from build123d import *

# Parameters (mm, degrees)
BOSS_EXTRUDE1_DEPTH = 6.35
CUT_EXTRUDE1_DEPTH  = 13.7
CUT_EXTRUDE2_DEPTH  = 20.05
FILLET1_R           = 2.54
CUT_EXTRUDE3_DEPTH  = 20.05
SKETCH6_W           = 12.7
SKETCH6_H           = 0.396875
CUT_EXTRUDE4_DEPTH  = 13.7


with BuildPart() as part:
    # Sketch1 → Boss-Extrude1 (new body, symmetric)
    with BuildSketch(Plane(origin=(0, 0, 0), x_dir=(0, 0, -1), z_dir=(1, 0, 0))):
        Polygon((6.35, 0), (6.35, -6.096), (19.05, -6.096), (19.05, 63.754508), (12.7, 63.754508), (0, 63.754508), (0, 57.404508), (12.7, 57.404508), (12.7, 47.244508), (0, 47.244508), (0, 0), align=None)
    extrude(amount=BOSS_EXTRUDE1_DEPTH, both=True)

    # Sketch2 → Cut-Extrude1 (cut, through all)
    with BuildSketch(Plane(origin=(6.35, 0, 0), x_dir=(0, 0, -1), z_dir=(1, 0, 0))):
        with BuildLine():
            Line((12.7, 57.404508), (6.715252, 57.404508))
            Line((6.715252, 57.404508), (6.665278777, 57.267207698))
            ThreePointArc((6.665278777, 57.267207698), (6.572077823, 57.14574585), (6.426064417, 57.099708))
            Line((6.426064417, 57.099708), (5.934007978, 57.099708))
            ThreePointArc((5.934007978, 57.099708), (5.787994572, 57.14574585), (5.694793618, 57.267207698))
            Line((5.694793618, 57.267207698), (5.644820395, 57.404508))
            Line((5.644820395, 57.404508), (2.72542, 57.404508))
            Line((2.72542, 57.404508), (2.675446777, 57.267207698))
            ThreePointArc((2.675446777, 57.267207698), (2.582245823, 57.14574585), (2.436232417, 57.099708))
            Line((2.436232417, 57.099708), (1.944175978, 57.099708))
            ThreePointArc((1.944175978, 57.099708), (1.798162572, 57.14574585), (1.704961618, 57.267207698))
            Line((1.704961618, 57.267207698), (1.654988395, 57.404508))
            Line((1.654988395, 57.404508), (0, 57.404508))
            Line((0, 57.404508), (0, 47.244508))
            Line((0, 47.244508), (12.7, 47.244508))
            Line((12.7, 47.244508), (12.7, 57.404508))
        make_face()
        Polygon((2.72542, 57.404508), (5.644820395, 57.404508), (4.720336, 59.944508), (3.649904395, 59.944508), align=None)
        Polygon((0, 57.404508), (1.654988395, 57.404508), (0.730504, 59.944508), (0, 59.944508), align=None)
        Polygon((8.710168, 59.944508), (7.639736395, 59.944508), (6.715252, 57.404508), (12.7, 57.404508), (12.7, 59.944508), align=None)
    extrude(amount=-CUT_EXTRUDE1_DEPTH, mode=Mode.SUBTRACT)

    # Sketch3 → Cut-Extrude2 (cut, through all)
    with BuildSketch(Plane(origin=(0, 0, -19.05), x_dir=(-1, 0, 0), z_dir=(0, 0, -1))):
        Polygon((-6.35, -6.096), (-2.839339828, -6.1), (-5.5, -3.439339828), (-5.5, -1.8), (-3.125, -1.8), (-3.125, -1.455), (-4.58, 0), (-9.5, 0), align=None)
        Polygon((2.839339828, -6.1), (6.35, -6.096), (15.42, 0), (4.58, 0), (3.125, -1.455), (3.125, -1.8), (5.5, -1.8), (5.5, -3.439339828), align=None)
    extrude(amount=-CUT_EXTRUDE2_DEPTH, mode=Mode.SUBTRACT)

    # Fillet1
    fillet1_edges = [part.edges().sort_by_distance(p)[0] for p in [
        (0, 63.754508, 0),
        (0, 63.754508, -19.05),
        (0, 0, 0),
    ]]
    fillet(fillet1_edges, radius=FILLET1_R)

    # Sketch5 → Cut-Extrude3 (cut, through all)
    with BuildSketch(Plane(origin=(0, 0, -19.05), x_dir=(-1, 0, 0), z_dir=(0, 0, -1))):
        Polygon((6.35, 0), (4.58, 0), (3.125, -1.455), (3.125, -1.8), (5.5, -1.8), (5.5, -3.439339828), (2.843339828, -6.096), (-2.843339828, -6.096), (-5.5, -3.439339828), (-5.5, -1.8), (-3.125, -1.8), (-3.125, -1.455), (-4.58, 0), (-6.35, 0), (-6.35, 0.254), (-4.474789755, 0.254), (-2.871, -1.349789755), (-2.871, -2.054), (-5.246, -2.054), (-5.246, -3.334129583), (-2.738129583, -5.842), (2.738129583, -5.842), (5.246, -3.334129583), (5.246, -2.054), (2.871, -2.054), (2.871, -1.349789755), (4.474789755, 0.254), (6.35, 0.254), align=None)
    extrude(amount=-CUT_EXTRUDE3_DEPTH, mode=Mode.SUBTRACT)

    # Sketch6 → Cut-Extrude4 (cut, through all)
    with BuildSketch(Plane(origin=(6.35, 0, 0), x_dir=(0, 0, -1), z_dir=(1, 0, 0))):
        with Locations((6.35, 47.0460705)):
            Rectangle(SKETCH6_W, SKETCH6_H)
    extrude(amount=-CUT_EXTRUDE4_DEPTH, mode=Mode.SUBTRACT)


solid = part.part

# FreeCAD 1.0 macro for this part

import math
import FreeCAD as App
import Part
import Sketcher
from FreeCAD import Vector
Q = App.Units.Quantity


def edges_at(feature, points):
    """Names of the edges that pass closest to the given points."""
    edges = feature.Shape.Edges
    near = lambda p: min(range(len(edges)), key=lambda i: edges[i].distToShape(Part.Vertex(*p))[0])
    return sorted({f"Edge{near(p) + 1}" for p in points})

doc = App.newDocument("Part")
params = doc.addObject("Spreadsheet::Sheet", "Params")
for row, (alias, value) in enumerate([
    ("sketch1_width", "0.4 in"),
    ("sketch1_height", "0.5 in"),
    ("sketch1_width2", "0.24 in"),
    ("sketch1_width3", "0.25 in"),
    ("pad1_length", "0.5 in"),
    ("sketch2_width", "0.5 in"),
    ("fillet_radius", "0.1 in"),
    ("sketch4_height", "0.01 in"),
    ("sketch5_height", "0.5 in"),
    ("sketch5_width", "0.015625 in"),
], start=1):
    params.set(f"A{row}", alias)
    params.set(f"B{row}", "=" + value)
    params.setAlias(f"B{row}", alias)

body = doc.addObject("PartDesign::Body", "Body")

sketch1 = body.newObject("Sketcher::SketchObject", "Sketch")
sketch1.AttachmentSupport = (doc.getObject("YZ_Plane"), [""])
sketch1.MapMode = "FlatFace"
sketch1.addGeometry([
    Part.LineSegment(Vector(0, -6, 0), Vector(-6, -6, 0)),
    Part.LineSegment(Vector(-6, -6, 0), Vector(-6, -19, 0)),
    Part.LineSegment(Vector(-6, -19, 0), Vector(64, -19, 0)),
    Part.LineSegment(Vector(64, -19, 0), Vector(64, 0, 0)),
    Part.LineSegment(Vector(64, 0, 0), Vector(57, 0, 0)),
    Part.LineSegment(Vector(57, 0, 0), Vector(57, -13, 0)),
    Part.LineSegment(Vector(57, -13, 0), Vector(47, -13, 0)),
    Part.LineSegment(Vector(47, -13, 0), Vector(47, 0, 0)),
    Part.LineSegment(Vector(47, 0, 0), Vector(0, 0, 0)),
    Part.LineSegment(Vector(0, 0, 0), Vector(0, -6, 0)),
], False)
sketch1.addConstraint([
    Sketcher.Constraint("Coincident", 0, 2, 1, 1),
    Sketcher.Constraint("Coincident", 1, 2, 2, 1),
    Sketcher.Constraint("Coincident", 2, 2, 3, 1),
    Sketcher.Constraint("Coincident", 3, 2, 4, 1),
    Sketcher.Constraint("Coincident", 4, 2, 5, 1),
    Sketcher.Constraint("Coincident", 5, 2, 6, 1),
    Sketcher.Constraint("Coincident", 6, 2, 7, 1),
    Sketcher.Constraint("Coincident", 7, 2, 8, 1),
    Sketcher.Constraint("Coincident", 8, 2, 9, 1),
    Sketcher.Constraint("Coincident", 9, 2, 0, 1),
    Sketcher.Constraint("Horizontal", 0),
    Sketcher.Constraint("Vertical", 1),
    Sketcher.Constraint("Horizontal", 2),
    Sketcher.Constraint("Vertical", 3),
    Sketcher.Constraint("Horizontal", 4),
    Sketcher.Constraint("Vertical", 5),
    Sketcher.Constraint("Horizontal", 6),
    Sketcher.Constraint("Vertical", 7),
    Sketcher.Constraint("Horizontal", 8),
    Sketcher.Constraint("Vertical", 9),
    Sketcher.Constraint("Coincident", 8, 2, -1, 1),
    Sketcher.Constraint("PointOnObject", 3, 2, -1),
    Sketcher.Constraint("Equal", 1, 5),
    Sketcher.Constraint("Equal", 4, 9),
    Sketcher.Constraint("DistanceX", 6, 2, 6, 1, Q("0.4 in")),
    Sketcher.Constraint("DistanceY", 1, 2, 1, 1, Q("0.5 in")),
    Sketcher.Constraint("DistanceX", 0, 2, 0, 1, Q("0.24 in")),
    Sketcher.Constraint("DistanceX", 4, 2, 4, 1, Q("0.25 in")),
    Sketcher.Constraint("DistanceX", 2, 1, 2, 2, Q("69.850508 mm")),
])
sketch1.setExpression("Constraints[24]", "Params.sketch1_width")
sketch1.setExpression("Constraints[25]", "Params.sketch1_height")
sketch1.setExpression("Constraints[26]", "Params.sketch1_width2")
sketch1.setExpression("Constraints[27]", "Params.sketch1_width3")
pad1 = body.newObject("PartDesign::Pad", "Pad")
pad1.Profile = sketch1
pad1.setExpression("Length", "Params.pad1_length")
pad1.Midplane = True

sketch2 = body.newObject("Sketcher::SketchObject", "Sketch001")
sketch2.AttachmentSupport = (doc.getObject("YZ_Plane"), [""])
sketch2.MapMode = "FlatFace"
sketch2.AttachmentOffset = App.Placement(Vector(0, 0, 0.25 * 25.4), App.Rotation())
sketch2.addGeometry([
    Part.LineSegment(Vector(57.4, -6.72, 0), Vector(57.27, -6.67, 0)),
    Part.ArcOfCircle(Part.Circle(Vector(57.35, -6.43, 0), Vector(0, 0, 1), 0.25), math.radians(180), math.radians(250)),
    Part.LineSegment(Vector(57.1, -6.43, 0), Vector(57.1, -5.93, 0)),
    Part.ArcOfCircle(Part.Circle(Vector(57.35, -5.93, 0), Vector(0, 0, 1), 0.25), math.radians(110), math.radians(180)),
    Part.LineSegment(Vector(57.27, -5.69, 0), Vector(57.4, -5.64, 0)),
    Part.LineSegment(Vector(57.4, -5.64, 0), Vector(59.94, -4.72, 0)),
    Part.LineSegment(Vector(59.94, -4.72, 0), Vector(59.94, -3.65, 0)),
    Part.LineSegment(Vector(59.94, -3.65, 0), Vector(57.4, -2.73, 0)),
    Part.LineSegment(Vector(57.4, -2.73, 0), Vector(57.27, -2.68, 0)),
    Part.ArcOfCircle(Part.Circle(Vector(57.35, -2.44, 0), Vector(0, 0, 1), 0.25), math.radians(180), math.radians(250)),
    Part.LineSegment(Vector(57.1, -2.44, 0), Vector(57.1, -1.94, 0)),
    Part.ArcOfCircle(Part.Circle(Vector(57.35, -1.94, 0), Vector(0, 0, 1), 0.25), math.radians(110), math.radians(180)),
    Part.LineSegment(Vector(57.27, -1.7, 0), Vector(57.4, -1.65, 0)),
    Part.LineSegment(Vector(57.4, -1.65, 0), Vector(59.94, -0.73, 0)),
    Part.LineSegment(Vector(59.94, -0.73, 0), Vector(59.94, 0, 0)),
    Part.LineSegment(Vector(59.94, 0, 0), Vector(47.24, 0, 0)),
    Part.LineSegment(Vector(47.24, 0, 0), Vector(47.24, -12.7, 0)),
    Part.LineSegment(Vector(47.24, -12.7, 0), Vector(59.94, -12.7, 0)),
    Part.LineSegment(Vector(59.94, -12.7, 0), Vector(59.94, -7.64, 0)),
    Part.LineSegment(Vector(59.94, -7.64, 0), Vector(57.4, -6.72, 0)),
], False)
sketch2.addConstraint([
    Sketcher.Constraint("Tangent", 0, 2, 1, 2),
    Sketcher.Constraint("Tangent", 1, 1, 2, 1),
    Sketcher.Constraint("Tangent", 2, 2, 3, 2),
    Sketcher.Constraint("Tangent", 3, 1, 4, 1),
    Sketcher.Constraint("Coincident", 4, 2, 5, 1),
    Sketcher.Constraint("Coincident", 5, 2, 6, 1),
    Sketcher.Constraint("Coincident", 6, 2, 7, 1),
    Sketcher.Constraint("Coincident", 7, 2, 8, 1),
    Sketcher.Constraint("Tangent", 8, 2, 9, 2),
    Sketcher.Constraint("Tangent", 9, 1, 10, 1),
    Sketcher.Constraint("Tangent", 10, 2, 11, 2),
    Sketcher.Constraint("Tangent", 11, 1, 12, 1),
    Sketcher.Constraint("Coincident", 12, 2, 13, 1),
    Sketcher.Constraint("Coincident", 13, 2, 14, 1),
    Sketcher.Constraint("Coincident", 14, 2, 15, 1),
    Sketcher.Constraint("Coincident", 15, 2, 16, 1),
    Sketcher.Constraint("Coincident", 16, 2, 17, 1),
    Sketcher.Constraint("Coincident", 17, 2, 18, 1),
    Sketcher.Constraint("Coincident", 18, 2, 19, 1),
    Sketcher.Constraint("Coincident", 19, 2, 0, 1),
    Sketcher.Constraint("Vertical", 2),
    Sketcher.Constraint("Vertical", 6),
    Sketcher.Constraint("Vertical", 10),
    Sketcher.Constraint("Vertical", 14),
    Sketcher.Constraint("Horizontal", 15),
    Sketcher.Constraint("Vertical", 16),
    Sketcher.Constraint("Horizontal", 17),
    Sketcher.Constraint("Vertical", 18),
    Sketcher.Constraint("Equal", 1, 3),
    Sketcher.Constraint("Equal", 3, 9),
    Sketcher.Constraint("Equal", 9, 11),
    Sketcher.Constraint("PointOnObject", 14, 2, -1),
    Sketcher.Constraint("Parallel", 4, 5),
    Sketcher.Constraint("Parallel", 0, 7),
    Sketcher.Constraint("Parallel", 7, 8),
    Sketcher.Constraint("Parallel", 5, 12),
    Sketcher.Constraint("Parallel", 12, 13),
    Sketcher.Constraint("Parallel", 8, 19),
    Sketcher.Constraint("Vertical", 3, 3, 9, 3),
    Sketcher.Constraint("Vertical", 0, 2, 3, 1),
    Sketcher.Constraint("Vertical", 4, 2, 7, 2),
    Sketcher.Constraint("Vertical", 7, 2, 12, 2),
    Sketcher.Constraint("Vertical", 6, 2, 13, 2),
    Sketcher.Constraint("Vertical", 14, 2, 17, 2),
    Sketcher.Constraint("Vertical", 12, 2, 19, 2),
    Sketcher.Constraint("Equal", 2, 10),
    Sketcher.Constraint("Equal", 17, 16),
    Sketcher.Constraint("DistanceX", 15, 2, 15, 1, Q("0.5 in")),
    Sketcher.Constraint("Angle", 0, Q("160 deg")),
    Sketcher.Constraint("DistanceX", 4, 2, 5, 2, Q("0.1 in")),
    Sketcher.Constraint("DistanceX", 2, 2, 4, 2, Q("0.012 in")),
    Sketcher.Constraint("DistanceY", 7, 2, -1, 1, Q("0.1073 in")),
    Sketcher.Constraint("Radius", 1, Q("0.254567 mm")),
    Sketcher.Constraint("DistanceY", 6, 1, 6, 2, Q("1.070432 mm")),
    Sketcher.Constraint("DistanceY", 6, 2, 13, 2, Q("2.9194 mm")),
    Sketcher.Constraint("DistanceX", -1, 1, 15, 2, Q("47.244508 mm")),
])
sketch2.setExpression("Constraints[47]", "Params.sketch2_width")
pocket1 = body.newObject("PartDesign::Pocket", "Pocket")
pocket1.Profile = sketch2
pocket1.Type = "ThroughAll"

sketch3 = body.newObject("Sketcher::SketchObject", "Sketch002")
sketch3.AttachmentSupport = (doc.getObject("XY_Plane"), [""])
sketch3.MapMode = "FlatFace"
sketch3.AttachmentOffset = App.Placement(Vector(0, 0, -0.75 * 25.4), App.Rotation())
sketch3.addGeometry([
    Part.LineSegment(Vector(6.35, -6.1, 0), Vector(2.84, -6.1, 0)),
    Part.LineSegment(Vector(2.84, -6.1, 0), Vector(5.5, -3.44, 0)),
    Part.LineSegment(Vector(5.5, -3.44, 0), Vector(5.5, -1.8, 0)),
    Part.LineSegment(Vector(5.5, -1.8, 0), Vector(3.12, -1.8, 0)),
    Part.LineSegment(Vector(3.12, -1.8, 0), Vector(3.12, -1.46, 0)),
    Part.LineSegment(Vector(3.12, -1.46, 0), Vector(4.58, 0, 0)),
    Part.LineSegment(Vector(4.58, 0, 0), Vector(9.5, 0, 0)),
    Part.LineSegment(Vector(9.5, 0, 0), Vector(6.35, -6.1, 0)),
    Part.LineSegment(Vector(-2.84, -6.1, 0), Vector(-6.35, -6.1, 0)),
    Part.LineSegment(Vector(-6.35, -6.1, 0), Vector(-15.42, 0, 0)),
    Part.LineSegment(Vector(-15.42, 0, 0), Vector(-4.58, 0, 0)),
    Part.LineSegment(Vector(-4.58, 0, 0), Vector(-3.12, -1.46, 0)),
    Part.LineSegment(Vector(-3.12, -1.46, 0), Vector(-3.12, -1.8, 0)),
    Part.LineSegment(Vector(-3.12, -1.8, 0), Vector(-5.5, -1.8, 0)),
    Part.LineSegment(Vector(-5.5, -1.8, 0), Vector(-5.5, -3.44, 0)),
    Part.LineSegment(Vector(-5.5, -3.44, 0), Vector(-2.84, -6.1, 0)),
], False)
sketch3.addConstraint([
    Sketcher.Constraint("Coincident", 0, 2, 1, 1),
    Sketcher.Constraint("Coincident", 1, 2, 2, 1),
    Sketcher.Constraint("Coincident", 2, 2, 3, 1),
    Sketcher.Constraint("Coincident", 3, 2, 4, 1),
    Sketcher.Constraint("Coincident", 4, 2, 5, 1),
    Sketcher.Constraint("Coincident", 5, 2, 6, 1),
    Sketcher.Constraint("Coincident", 6, 2, 7, 1),
    Sketcher.Constraint("Coincident", 7, 2, 0, 1),
    Sketcher.Constraint("Coincident", 8, 2, 9, 1),
    Sketcher.Constraint("Coincident", 9, 2, 10, 1),
    Sketcher.Constraint("Coincident", 10, 2, 11, 1),
    Sketcher.Constraint("Coincident", 11, 2, 12, 1),
    Sketcher.Constraint("Coincident", 12, 2, 13, 1),
    Sketcher.Constraint("Coincident", 13, 2, 14, 1),
    Sketcher.Constraint("Coincident", 14, 2, 15, 1),
    Sketcher.Constraint("Coincident", 15, 2, 8, 1),
    Sketcher.Constraint("Vertical", 2),
    Sketcher.Constraint("Horizontal", 3),
    Sketcher.Constraint("Vertical", 4),
    Sketcher.Constraint("Horizontal", 6),
    Sketcher.Constraint("Horizontal", 10),
    Sketcher.Constraint("Vertical", 12),
    Sketcher.Constraint("Horizontal", 13),
    Sketcher.Constraint("Vertical", 14),
    Sketcher.Constraint("Symmetric", 5, 2, 10, 2, -1, 1),
    Sketcher.Constraint("Symmetric", 7, 2, 8, 2, -2),
    Sketcher.Constraint("Symmetric", 4, 2, 11, 2, -2),
    Sketcher.Constraint("Symmetric", 2, 2, 13, 2, -2),
    Sketcher.Constraint("Symmetric", 0, 2, 15, 2, -2),
    Sketcher.Constraint("PointOnObject", 5, 2, -1),
    Sketcher.Constraint("Parallel", 1, 5),
    Sketcher.Constraint("Perpendicular", 5, 11),
    Sketcher.Constraint("Parallel", 11, 15),
    Sketcher.Constraint("DistanceX", -1, 1, 7, 2, Q("0.25 in")),
    Sketcher.Constraint("DistanceY", 7, 2, -1, 1, Q("0.24 in")),
    Sketcher.Constraint("DistanceX", 3, 2, 3, 1, Q("2.375 mm")),
    Sketcher.Constraint("DistanceX", 6, 1, 6, 2, Q("4.92 mm")),
    Sketcher.Constraint("DistanceX", 10, 1, 10, 2, Q("10.84 mm")),
    Sketcher.Constraint("DistanceY", 4, 1, 4, 2, Q("0.345 mm")),
    Sketcher.Constraint("DistanceX", 10, 2, 0, 2, Q("0.2921 in")),
    Sketcher.Constraint("DistanceY", 2, 1, 2, 2, Q("1.63934 mm")),
    Sketcher.Constraint("DistanceY", 0, 2, -1, 1, Q("6.1 mm")),
    Sketcher.Constraint("DistanceX", -1, 1, 1, 2, Q("5.5 mm")),
])
pocket2 = body.newObject("PartDesign::Pocket", "Pocket001")
pocket2.Profile = sketch3
pocket2.Type = "ThroughAll"
pocket2.Reversed = True
doc.recompute()

fillet = body.newObject("PartDesign::Fillet", "Fillet")
fillet.Base = (pocket2, edges_at(pocket2, [(0, 63.755, 0), (0, 63.755, -19.05), (0, 0, 0)]))
fillet.setExpression("Radius", "Params.fillet_radius")

sketch4 = body.newObject("Sketcher::SketchObject", "Sketch003")
sketch4.AttachmentSupport = (doc.getObject("XY_Plane"), [""])
sketch4.MapMode = "FlatFace"
sketch4.AttachmentOffset = App.Placement(Vector(0, 0, -0.75 * 25.4), App.Rotation())
sketch4.addGeometry([
    Part.LineSegment(Vector(-4.58, 0, 0), Vector(-6.35, 0, 0)),
    Part.LineSegment(Vector(-6.35, 0, 0), Vector(-6.35, 0.25, 0)),
    Part.LineSegment(Vector(-6.35, 0.25, 0), Vector(-4.47, 0.25, 0)),
    Part.LineSegment(Vector(-4.47, 0.25, 0), Vector(-2.87, -1.35, 0)),
    Part.LineSegment(Vector(-2.87, -1.35, 0), Vector(-2.87, -2.05, 0)),
    Part.LineSegment(Vector(-2.87, -2.05, 0), Vector(-5.25, -2.05, 0)),
    Part.LineSegment(Vector(-5.25, -2.05, 0), Vector(-5.25, -3.33, 0)),
    Part.LineSegment(Vector(-5.25, -3.33, 0), Vector(-2.74, -5.84, 0)),
    Part.LineSegment(Vector(-2.74, -5.84, 0), Vector(2.74, -5.84, 0)),
    Part.LineSegment(Vector(2.74, -5.84, 0), Vector(5.25, -3.33, 0)),
    Part.LineSegment(Vector(5.25, -3.33, 0), Vector(5.25, -2.05, 0)),
    Part.LineSegment(Vector(5.25, -2.05, 0), Vector(2.87, -2.05, 0)),
    Part.LineSegment(Vector(2.87, -2.05, 0), Vector(2.87, -1.35, 0)),
    Part.LineSegment(Vector(2.87, -1.35, 0), Vector(4.47, 0.25, 0)),
    Part.LineSegment(Vector(4.47, 0.25, 0), Vector(6.35, 0.25, 0)),
    Part.LineSegment(Vector(6.35, 0.25, 0), Vector(6.35, 0, 0)),
    Part.LineSegment(Vector(6.35, 0, 0), Vector(4.58, 0, 0)),
    Part.LineSegment(Vector(4.58, 0, 0), Vector(3.12, -1.46, 0)),
    Part.LineSegment(Vector(3.12, -1.46, 0), Vector(3.12, -1.8, 0)),
    Part.LineSegment(Vector(3.12, -1.8, 0), Vector(5.5, -1.8, 0)),
    Part.LineSegment(Vector(5.5, -1.8, 0), Vector(5.5, -3.44, 0)),
    Part.LineSegment(Vector(5.5, -3.44, 0), Vector(2.84, -6.1, 0)),
    Part.LineSegment(Vector(2.84, -6.1, 0), Vector(-2.84, -6.1, 0)),
    Part.LineSegment(Vector(-2.84, -6.1, 0), Vector(-5.5, -3.44, 0)),
    Part.LineSegment(Vector(-5.5, -3.44, 0), Vector(-5.5, -1.8, 0)),
    Part.LineSegment(Vector(-5.5, -1.8, 0), Vector(-3.12, -1.8, 0)),
    Part.LineSegment(Vector(-3.12, -1.8, 0), Vector(-3.12, -1.46, 0)),
    Part.LineSegment(Vector(-3.12, -1.46, 0), Vector(-4.58, 0, 0)),
], False)
sketch4.addConstraint([
    Sketcher.Constraint("Coincident", 0, 2, 1, 1),
    Sketcher.Constraint("Coincident", 1, 2, 2, 1),
    Sketcher.Constraint("Coincident", 2, 2, 3, 1),
    Sketcher.Constraint("Coincident", 3, 2, 4, 1),
    Sketcher.Constraint("Coincident", 4, 2, 5, 1),
    Sketcher.Constraint("Coincident", 5, 2, 6, 1),
    Sketcher.Constraint("Coincident", 6, 2, 7, 1),
    Sketcher.Constraint("Coincident", 7, 2, 8, 1),
    Sketcher.Constraint("Coincident", 8, 2, 9, 1),
    Sketcher.Constraint("Coincident", 9, 2, 10, 1),
    Sketcher.Constraint("Coincident", 10, 2, 11, 1),
    Sketcher.Constraint("Coincident", 11, 2, 12, 1),
    Sketcher.Constraint("Coincident", 12, 2, 13, 1),
    Sketcher.Constraint("Coincident", 13, 2, 14, 1),
    Sketcher.Constraint("Coincident", 14, 2, 15, 1),
    Sketcher.Constraint("Coincident", 15, 2, 16, 1),
    Sketcher.Constraint("Coincident", 16, 2, 17, 1),
    Sketcher.Constraint("Coincident", 17, 2, 18, 1),
    Sketcher.Constraint("Coincident", 18, 2, 19, 1),
    Sketcher.Constraint("Coincident", 19, 2, 20, 1),
    Sketcher.Constraint("Coincident", 20, 2, 21, 1),
    Sketcher.Constraint("Coincident", 21, 2, 22, 1),
    Sketcher.Constraint("Coincident", 22, 2, 23, 1),
    Sketcher.Constraint("Coincident", 23, 2, 24, 1),
    Sketcher.Constraint("Coincident", 24, 2, 25, 1),
    Sketcher.Constraint("Coincident", 25, 2, 26, 1),
    Sketcher.Constraint("Coincident", 26, 2, 27, 1),
    Sketcher.Constraint("Coincident", 27, 2, 0, 1),
    Sketcher.Constraint("Horizontal", 0),
    Sketcher.Constraint("Vertical", 1),
    Sketcher.Constraint("Horizontal", 2),
    Sketcher.Constraint("Vertical", 4),
    Sketcher.Constraint("Horizontal", 5),
    Sketcher.Constraint("Vertical", 6),
    Sketcher.Constraint("Horizontal", 8),
    Sketcher.Constraint("Vertical", 10),
    Sketcher.Constraint("Horizontal", 11),
    Sketcher.Constraint("Vertical", 12),
    Sketcher.Constraint("Horizontal", 14),
    Sketcher.Constraint("Vertical", 15),
    Sketcher.Constraint("Horizontal", 16),
    Sketcher.Constraint("Vertical", 18),
    Sketcher.Constraint("Horizontal", 19),
    Sketcher.Constraint("Vertical", 20),
    Sketcher.Constraint("Horizontal", 22),
    Sketcher.Constraint("Vertical", 24),
    Sketcher.Constraint("Horizontal", 25),
    Sketcher.Constraint("Vertical", 26),
    Sketcher.Constraint("Symmetric", 0, 2, 15, 2, -1, 1),
    Sketcher.Constraint("Symmetric", 6, 2, 9, 2, -2),
    Sketcher.Constraint("Symmetric", 4, 2, 11, 2, -2),
    Sketcher.Constraint("Symmetric", 2, 2, 13, 2, -2),
    Sketcher.Constraint("Symmetric", 20, 2, 23, 2, -2),
    Sketcher.Constraint("Symmetric", 18, 2, 25, 2, -2),
    Sketcher.Constraint("Symmetric", 16, 2, 27, 2, -2),
    Sketcher.Constraint("Parallel", 3, 7),
    Sketcher.Constraint("Perpendicular", 7, 9),
    Sketcher.Constraint("Parallel", 9, 13),
    Sketcher.Constraint("Parallel", 13, 17),
    Sketcher.Constraint("Parallel", 17, 21),
    Sketcher.Constraint("Perpendicular", 21, 23),
    Sketcher.Constraint("Parallel", 23, 27),
    Sketcher.Constraint("Horizontal", 3, 2, 12, 2),
    Sketcher.Constraint("Equal", 11, 19),
    Sketcher.Constraint("DistanceY", 1, 1, 1, 2, Q("0.01 in")),
    Sketcher.Constraint("DistanceX", 0, 2, -1, 1, Q("0.25 in")),
    Sketcher.Constraint("DistanceY", 7, 2, -1, 1, Q("0.23 in")),
    Sketcher.Constraint("DistanceY", 21, 2, -1, 1, Q("0.24 in")),
    Sketcher.Constraint("DistanceX", 12, 2, 17, 2, Q("0.01 in")),
    Sketcher.Constraint("DistanceY", 11, 2, 18, 2, Q("0.01 in")),
    Sketcher.Constraint("DistanceX", 0, 2, 0, 1, Q("1.77 mm")),
    Sketcher.Constraint("DistanceX", 5, 2, 5, 1, Q("2.375 mm")),
    Sketcher.Constraint("DistanceY", 18, 2, 18, 1, Q("0.345 mm")),
    Sketcher.Constraint("Distance", 3, Q("2.268101 mm")),
    Sketcher.Constraint("DistanceX", 2, 1, 2, 2, Q("1.87521 mm")),
    Sketcher.Constraint("DistanceX", 8, 1, 8, 2, Q("5.476259 mm")),
    Sketcher.Constraint("DistanceX", 22, 2, 22, 1, Q("5.68668 mm")),
])
sketch4.setExpression("Constraints[64]", "Params.sketch4_height")
pocket3 = body.newObject("PartDesign::Pocket", "Pocket002")
pocket3.Profile = sketch4
pocket3.Type = "ThroughAll"
pocket3.Reversed = True

sketch5 = body.newObject("Sketcher::SketchObject", "Sketch004")
sketch5.AttachmentSupport = (doc.getObject("YZ_Plane"), [""])
sketch5.MapMode = "FlatFace"
sketch5.AttachmentOffset = App.Placement(Vector(0, 0, 0.25 * 25.4), App.Rotation())
sketch5.addGeometry([
    Part.LineSegment(Vector(47.24, 0, 0), Vector(46.85, 0, 0)),
    Part.LineSegment(Vector(46.85, 0, 0), Vector(46.85, -12.7, 0)),
    Part.LineSegment(Vector(46.85, -12.7, 0), Vector(47.24, -12.7, 0)),
    Part.LineSegment(Vector(47.24, -12.7, 0), Vector(47.24, 0, 0)),
], False)
sketch5.addConstraint([
    Sketcher.Constraint("Coincident", 0, 2, 1, 1),
    Sketcher.Constraint("Coincident", 1, 2, 2, 1),
    Sketcher.Constraint("Coincident", 2, 2, 3, 1),
    Sketcher.Constraint("Coincident", 3, 2, 0, 1),
    Sketcher.Constraint("Horizontal", 0),
    Sketcher.Constraint("Vertical", 1),
    Sketcher.Constraint("Horizontal", 2),
    Sketcher.Constraint("Vertical", 3),
    Sketcher.Constraint("PointOnObject", 0, 2, -1),
    Sketcher.Constraint("DistanceY", 1, 2, 1, 1, Q("0.5 in")),
    Sketcher.Constraint("DistanceX", 0, 2, 0, 1, Q("0.015625 in")),
    Sketcher.Constraint("DistanceX", -1, 1, 2, 2, Q("47.244508 mm")),
])
sketch5.setExpression("Constraints[9]", "Params.sketch5_height")
sketch5.setExpression("Constraints[10]", "Params.sketch5_width")
pocket4 = body.newObject("PartDesign::Pocket", "Pocket003")
pocket4.Profile = sketch5
pocket4.Type = "ThroughAll"

doc.recompute()
